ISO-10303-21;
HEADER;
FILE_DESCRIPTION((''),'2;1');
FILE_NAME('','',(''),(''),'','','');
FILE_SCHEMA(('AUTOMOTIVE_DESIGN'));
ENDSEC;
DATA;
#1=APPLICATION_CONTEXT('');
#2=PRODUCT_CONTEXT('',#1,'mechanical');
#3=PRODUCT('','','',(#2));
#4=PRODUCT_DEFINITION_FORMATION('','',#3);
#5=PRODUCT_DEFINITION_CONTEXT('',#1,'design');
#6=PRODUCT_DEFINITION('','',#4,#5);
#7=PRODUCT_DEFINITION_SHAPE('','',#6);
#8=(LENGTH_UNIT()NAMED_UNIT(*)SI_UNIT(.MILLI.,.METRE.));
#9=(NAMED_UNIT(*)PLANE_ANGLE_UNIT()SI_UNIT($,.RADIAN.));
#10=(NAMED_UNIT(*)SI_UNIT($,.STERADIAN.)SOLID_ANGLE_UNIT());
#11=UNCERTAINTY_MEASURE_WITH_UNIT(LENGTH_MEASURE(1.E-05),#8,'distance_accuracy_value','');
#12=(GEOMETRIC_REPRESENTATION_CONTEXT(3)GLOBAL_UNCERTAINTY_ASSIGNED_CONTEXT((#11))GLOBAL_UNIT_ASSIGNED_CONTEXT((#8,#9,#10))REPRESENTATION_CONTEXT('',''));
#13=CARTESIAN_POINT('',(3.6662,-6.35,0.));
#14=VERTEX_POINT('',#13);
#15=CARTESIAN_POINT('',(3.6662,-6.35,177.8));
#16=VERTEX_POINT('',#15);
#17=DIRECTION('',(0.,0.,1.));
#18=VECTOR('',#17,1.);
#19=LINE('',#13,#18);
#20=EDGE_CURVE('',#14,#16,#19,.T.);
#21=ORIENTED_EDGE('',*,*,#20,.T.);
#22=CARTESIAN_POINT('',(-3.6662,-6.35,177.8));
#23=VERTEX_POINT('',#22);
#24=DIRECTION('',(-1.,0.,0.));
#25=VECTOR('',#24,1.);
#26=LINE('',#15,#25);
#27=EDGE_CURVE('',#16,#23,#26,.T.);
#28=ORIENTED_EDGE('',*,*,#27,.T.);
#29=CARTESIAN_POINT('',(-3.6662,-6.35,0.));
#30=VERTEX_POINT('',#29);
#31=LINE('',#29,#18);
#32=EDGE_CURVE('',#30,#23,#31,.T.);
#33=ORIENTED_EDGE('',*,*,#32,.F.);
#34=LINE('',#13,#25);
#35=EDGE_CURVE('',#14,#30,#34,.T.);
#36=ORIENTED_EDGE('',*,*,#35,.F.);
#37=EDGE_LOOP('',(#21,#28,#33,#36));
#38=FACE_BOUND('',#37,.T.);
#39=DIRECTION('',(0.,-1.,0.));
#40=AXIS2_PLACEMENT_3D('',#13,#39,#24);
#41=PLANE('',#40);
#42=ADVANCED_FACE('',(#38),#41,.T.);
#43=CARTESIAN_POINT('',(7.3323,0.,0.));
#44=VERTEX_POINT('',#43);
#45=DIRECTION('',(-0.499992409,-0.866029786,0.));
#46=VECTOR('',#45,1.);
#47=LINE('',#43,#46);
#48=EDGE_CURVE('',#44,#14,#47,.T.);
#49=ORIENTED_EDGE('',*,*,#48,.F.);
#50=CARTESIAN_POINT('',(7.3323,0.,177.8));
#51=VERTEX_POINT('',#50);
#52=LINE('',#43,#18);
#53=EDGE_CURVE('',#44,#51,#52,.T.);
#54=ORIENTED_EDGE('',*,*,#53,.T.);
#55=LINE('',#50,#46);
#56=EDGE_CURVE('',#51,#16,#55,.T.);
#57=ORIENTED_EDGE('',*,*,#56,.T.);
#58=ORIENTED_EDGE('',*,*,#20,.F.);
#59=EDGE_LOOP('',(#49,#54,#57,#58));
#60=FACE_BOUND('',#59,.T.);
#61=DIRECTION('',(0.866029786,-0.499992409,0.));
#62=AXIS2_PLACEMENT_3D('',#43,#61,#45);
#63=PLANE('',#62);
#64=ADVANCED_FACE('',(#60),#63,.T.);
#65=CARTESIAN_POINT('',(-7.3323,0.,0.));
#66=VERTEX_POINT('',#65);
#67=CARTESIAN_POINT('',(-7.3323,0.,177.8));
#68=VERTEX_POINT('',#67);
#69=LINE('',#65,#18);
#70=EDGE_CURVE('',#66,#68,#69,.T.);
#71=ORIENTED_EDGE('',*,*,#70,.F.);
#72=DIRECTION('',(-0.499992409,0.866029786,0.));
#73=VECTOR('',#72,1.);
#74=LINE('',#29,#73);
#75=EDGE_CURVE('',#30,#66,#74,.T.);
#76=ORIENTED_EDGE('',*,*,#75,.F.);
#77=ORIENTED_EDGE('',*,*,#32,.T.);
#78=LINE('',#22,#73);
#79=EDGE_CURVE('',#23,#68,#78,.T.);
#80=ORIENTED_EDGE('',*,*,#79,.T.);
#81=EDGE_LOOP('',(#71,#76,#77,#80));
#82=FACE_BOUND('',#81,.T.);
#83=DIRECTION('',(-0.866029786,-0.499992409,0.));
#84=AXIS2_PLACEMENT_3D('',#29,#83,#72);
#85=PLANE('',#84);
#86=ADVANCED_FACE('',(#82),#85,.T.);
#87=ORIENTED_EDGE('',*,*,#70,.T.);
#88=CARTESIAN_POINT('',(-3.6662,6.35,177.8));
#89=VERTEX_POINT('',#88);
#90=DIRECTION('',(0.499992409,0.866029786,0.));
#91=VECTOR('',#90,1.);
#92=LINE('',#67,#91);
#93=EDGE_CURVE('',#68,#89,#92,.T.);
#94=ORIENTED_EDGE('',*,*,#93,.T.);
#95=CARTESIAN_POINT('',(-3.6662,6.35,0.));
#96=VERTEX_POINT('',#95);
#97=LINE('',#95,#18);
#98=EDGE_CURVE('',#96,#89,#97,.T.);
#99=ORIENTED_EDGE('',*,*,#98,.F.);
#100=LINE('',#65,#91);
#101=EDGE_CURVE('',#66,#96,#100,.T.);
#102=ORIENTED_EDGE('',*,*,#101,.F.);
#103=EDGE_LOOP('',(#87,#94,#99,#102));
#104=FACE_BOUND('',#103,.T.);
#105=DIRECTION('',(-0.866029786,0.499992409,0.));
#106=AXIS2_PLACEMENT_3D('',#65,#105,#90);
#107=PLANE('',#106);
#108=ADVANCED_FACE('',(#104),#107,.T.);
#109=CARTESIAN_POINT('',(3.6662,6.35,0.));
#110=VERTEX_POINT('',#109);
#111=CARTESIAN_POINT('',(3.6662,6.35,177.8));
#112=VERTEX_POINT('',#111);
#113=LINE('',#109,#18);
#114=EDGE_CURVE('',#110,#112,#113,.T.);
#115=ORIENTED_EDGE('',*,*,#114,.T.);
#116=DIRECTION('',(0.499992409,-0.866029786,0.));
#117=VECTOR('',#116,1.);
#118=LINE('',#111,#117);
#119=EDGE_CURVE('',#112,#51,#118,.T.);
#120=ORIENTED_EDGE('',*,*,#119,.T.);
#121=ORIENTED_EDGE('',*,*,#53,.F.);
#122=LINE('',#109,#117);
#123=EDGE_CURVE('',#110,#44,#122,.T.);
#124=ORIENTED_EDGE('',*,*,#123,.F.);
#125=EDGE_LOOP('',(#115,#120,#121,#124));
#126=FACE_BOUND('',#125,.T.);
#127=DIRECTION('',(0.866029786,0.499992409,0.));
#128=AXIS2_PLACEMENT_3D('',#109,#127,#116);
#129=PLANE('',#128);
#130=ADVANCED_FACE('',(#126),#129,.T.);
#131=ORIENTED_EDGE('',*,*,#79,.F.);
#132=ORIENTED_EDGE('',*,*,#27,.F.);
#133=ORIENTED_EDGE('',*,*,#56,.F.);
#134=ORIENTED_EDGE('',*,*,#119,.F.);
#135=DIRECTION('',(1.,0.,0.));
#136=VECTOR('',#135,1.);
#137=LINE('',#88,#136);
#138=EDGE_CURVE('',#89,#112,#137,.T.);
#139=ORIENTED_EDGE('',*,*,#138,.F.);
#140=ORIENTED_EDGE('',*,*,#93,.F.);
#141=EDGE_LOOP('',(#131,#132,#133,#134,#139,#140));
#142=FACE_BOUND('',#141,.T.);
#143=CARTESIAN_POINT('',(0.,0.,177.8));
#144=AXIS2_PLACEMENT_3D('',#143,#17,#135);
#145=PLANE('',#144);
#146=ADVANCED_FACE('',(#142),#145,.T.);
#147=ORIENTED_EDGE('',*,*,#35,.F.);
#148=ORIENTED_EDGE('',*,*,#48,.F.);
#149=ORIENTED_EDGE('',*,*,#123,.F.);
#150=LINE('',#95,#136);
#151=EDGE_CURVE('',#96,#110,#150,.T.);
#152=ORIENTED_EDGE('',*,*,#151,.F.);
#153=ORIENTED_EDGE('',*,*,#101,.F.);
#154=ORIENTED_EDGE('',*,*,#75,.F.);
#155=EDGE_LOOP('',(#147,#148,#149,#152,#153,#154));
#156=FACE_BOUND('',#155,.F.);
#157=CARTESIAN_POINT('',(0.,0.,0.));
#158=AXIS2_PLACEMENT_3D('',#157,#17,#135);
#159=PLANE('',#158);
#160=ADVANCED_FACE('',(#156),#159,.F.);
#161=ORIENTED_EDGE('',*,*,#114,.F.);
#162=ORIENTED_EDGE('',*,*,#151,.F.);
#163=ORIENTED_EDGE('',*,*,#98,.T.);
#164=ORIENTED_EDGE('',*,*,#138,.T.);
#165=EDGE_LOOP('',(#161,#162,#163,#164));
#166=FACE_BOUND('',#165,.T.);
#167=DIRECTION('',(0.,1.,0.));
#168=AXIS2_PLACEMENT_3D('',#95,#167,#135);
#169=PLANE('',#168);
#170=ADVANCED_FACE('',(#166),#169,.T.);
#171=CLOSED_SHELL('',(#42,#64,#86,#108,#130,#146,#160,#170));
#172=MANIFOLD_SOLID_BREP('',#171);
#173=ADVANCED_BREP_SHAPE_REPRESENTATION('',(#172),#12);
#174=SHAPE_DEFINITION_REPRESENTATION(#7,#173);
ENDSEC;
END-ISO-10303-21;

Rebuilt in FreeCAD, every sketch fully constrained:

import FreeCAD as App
import Part
import Sketcher
from FreeCAD import Vector
Q = App.Units.Quantity


def add_polygon(sketch, points):
    """Adds a closed chain of lines whose ends are joined by coincident constraints."""
    first, n = sketch.GeometryCount, len(points)
    for a, b in zip(points, points[1:] + points[:1]):
        sketch.addGeometry(Part.LineSegment(App.Vector(*a, 0), App.Vector(*b, 0)), False)
    for i in range(n):
        sketch.addConstraint(Sketcher.Constraint("Coincident", first + i, 2, first + (i + 1) % n, 1))

doc = App.newDocument("Part")
body = doc.addObject("PartDesign::Body", "Body")

sketch1 = doc.addObject("Sketcher::SketchObject", "Sketch")
body.addObject(sketch1)
sketch1.AttachmentSupport = (doc.XY_Plane, [""])
sketch1.MapMode = "FlatFace"
add_polygon(sketch1, [(7, 0), (4, 6), (-4, 6), (-7, 0), (-4, -6), (4, -6)])
sketch1.addConstraint([
    Sketcher.Constraint("Horizontal", 1),
    Sketcher.Constraint("Horizontal", 4),
    Sketcher.Constraint("Symmetric", 0, 2, 3, 2, -1, 1),
    Sketcher.Constraint("Symmetric", 2, 2, 5, 2, -1, 1),
    Sketcher.Constraint("PointOnObject", 2, 2, -1),
    Sketcher.Constraint("Parallel", 2, 5),
    Sketcher.Constraint("Vertical", 1, 2, 3, 2),
    Sketcher.Constraint("DistanceY", 3, 2, 1, 2, Q("0.5 in")),
    Sketcher.Constraint("Angle", 0, Q("119.9995 deg")),
    Sketcher.Constraint("DistanceX", 2, 2, 0, 2, Q("0.433 in")),
])
pad1 = doc.addObject("PartDesign::Pad", "Pad")
body.addObject(pad1)
pad1.Profile = sketch1
pad1.Length = Q("7 in")

doc.recompute()
